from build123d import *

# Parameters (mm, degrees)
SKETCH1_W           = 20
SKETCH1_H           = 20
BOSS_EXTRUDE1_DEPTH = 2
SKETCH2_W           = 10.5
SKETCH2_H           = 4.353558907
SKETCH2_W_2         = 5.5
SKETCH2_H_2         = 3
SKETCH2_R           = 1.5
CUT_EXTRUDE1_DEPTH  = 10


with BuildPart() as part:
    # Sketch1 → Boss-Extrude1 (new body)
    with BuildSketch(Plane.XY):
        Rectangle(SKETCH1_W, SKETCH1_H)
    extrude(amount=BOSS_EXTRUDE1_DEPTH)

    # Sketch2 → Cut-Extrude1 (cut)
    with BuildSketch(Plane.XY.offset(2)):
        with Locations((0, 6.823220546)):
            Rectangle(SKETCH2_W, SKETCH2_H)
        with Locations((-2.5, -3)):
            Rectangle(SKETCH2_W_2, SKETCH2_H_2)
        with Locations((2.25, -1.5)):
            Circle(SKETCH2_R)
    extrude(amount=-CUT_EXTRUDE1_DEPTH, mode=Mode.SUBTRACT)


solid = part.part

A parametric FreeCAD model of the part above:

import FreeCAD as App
import Part
import Sketcher

doc = App.newDocument("Part")
params = doc.addObject("Spreadsheet::Sheet", "Params")
for row, (alias, value) in enumerate([
    ("sketch1_width", "20 mm"),
    ("pad1_length", "2 mm"),
    ("sketch2_diameter", "3 mm"),
    ("sketch2_height", "3 mm"),
    ("sketch2_width", "10.5 mm"),
    ("sketch2_width2", "5.5 mm"),
    ("pocket1_length", "10 mm"),
], start=1):
    params.set(f"A{row}", alias)
    params.set(f"B{row}", "=" + value)
    params.setAlias(f"B{row}", alias)

body = doc.addObject("PartDesign::Body", "Body")

sketch1 = body.newObject("Sketcher::SketchObject", "Sketch")
sketch1.AttachmentSupport = (doc.getObject("XY_Plane"), [""])
sketch1.MapMode = "FlatFace"
sketch1.addGeometry(Part.LineSegment(App.Vector(-10, 10, 0), App.Vector(-10, -10, 0)), False)
sketch1.addGeometry(Part.LineSegment(App.Vector(-10, -10, 0), App.Vector(10, -10, 0)), False)
sketch1.addGeometry(Part.LineSegment(App.Vector(10, -10, 0), App.Vector(10, 10, 0)), False)
sketch1.addGeometry(Part.LineSegment(App.Vector(10, 10, 0), App.Vector(-10, 10, 0)), False)
sketch1.addConstraint(Sketcher.Constraint("Coincident", 0, 2, 1, 1))
sketch1.addConstraint(Sketcher.Constraint("Coincident", 1, 2, 2, 1))
sketch1.addConstraint(Sketcher.Constraint("Coincident", 2, 2, 3, 1))
sketch1.addConstraint(Sketcher.Constraint("Coincident", 3, 2, 0, 1))
sketch1.addConstraint(Sketcher.Constraint("Vertical", 0))
sketch1.addConstraint(Sketcher.Constraint("Horizontal", 1))
sketch1.addConstraint(Sketcher.Constraint("Vertical", 2))
sketch1.addConstraint(Sketcher.Constraint("Horizontal", 3))
sketch1.addConstraint(Sketcher.Constraint("Symmetric", 0, 2, 2, 2, -1, 1))
sketch1.addConstraint(Sketcher.Constraint("Equal", 3, 0))
sketch1.addConstraint(Sketcher.Constraint("DistanceX", 1, 1, 1, 2, 20.0))
sketch1.setExpression("Constraints[10]", "Params.sketch1_width")
pad1 = body.newObject("PartDesign::Pad", "Pad")
pad1.Profile = sketch1
pad1.setExpression("Length", "Params.pad1_length")

sketch2 = body.newObject("Sketcher::SketchObject", "Sketch001")
sketch2.AttachmentSupport = (doc.getObject("XY_Plane"), [""])
sketch2.MapMode = "FlatFace"
sketch2.AttachmentOffset = App.Placement(App.Vector(0, 0, 2), App.Rotation())
sketch2.addGeometry(Part.LineSegment(App.Vector(-5.2, 9, 0), App.Vector(-5.2, 4.6, 0)), False)
sketch2.addGeometry(Part.LineSegment(App.Vector(-5.2, 4.6, 0), App.Vector(5.2, 4.6, 0)), False)
sketch2.addGeometry(Part.LineSegment(App.Vector(5.2, 4.6, 0), App.Vector(5.2, 9, 0)), False)
sketch2.addGeometry(Part.LineSegment(App.Vector(5.2, 9, 0), App.Vector(-5.2, 9, 0)), False)
sketch2.addGeometry(Part.LineSegment(App.Vector(-5.2, -1.5, 0), App.Vector(-5.2, -4.5, 0)), False)
sketch2.addGeometry(Part.LineSegment(App.Vector(-5.2, -4.5, 0), App.Vector(0.2, -4.5, 0)), False)
sketch2.addGeometry(Part.LineSegment(App.Vector(0.2, -4.5, 0), App.Vector(0.2, -1.5, 0)), False)
sketch2.addGeometry(Part.LineSegment(App.Vector(0.2, -1.5, 0), App.Vector(-5.2, -1.5, 0)), False)
sketch2.addGeometry(Part.Circle(App.Vector(2.2, -1.5, 0), App.Vector(0, 0, 1), 1.5), False)
sketch2.addConstraint(Sketcher.Constraint("Coincident", 0, 2, 1, 1))
sketch2.addConstraint(Sketcher.Constraint("Coincident", 1, 2, 2, 1))
sketch2.addConstraint(Sketcher.Constraint("Coincident", 2, 2, 3, 1))
sketch2.addConstraint(Sketcher.Constraint("Coincident", 3, 2, 0, 1))
sketch2.addConstraint(Sketcher.Constraint("Coincident", 4, 2, 5, 1))
sketch2.addConstraint(Sketcher.Constraint("Coincident", 5, 2, 6, 1))
sketch2.addConstraint(Sketcher.Constraint("Coincident", 6, 2, 7, 1))
sketch2.addConstraint(Sketcher.Constraint("Coincident", 7, 2, 4, 1))
sketch2.addConstraint(Sketcher.Constraint("Vertical", 0))
sketch2.addConstraint(Sketcher.Constraint("Horizontal", 1))
sketch2.addConstraint(Sketcher.Constraint("Vertical", 2))
sketch2.addConstraint(Sketcher.Constraint("Horizontal", 3))
sketch2.addConstraint(Sketcher.Constraint("Vertical", 4))
sketch2.addConstraint(Sketcher.Constraint("Horizontal", 5))
sketch2.addConstraint(Sketcher.Constraint("Vertical", 6))
sketch2.addConstraint(Sketcher.Constraint("Horizontal", 7))
sketch2.addConstraint(Sketcher.Constraint("Horizontal", 8, 3, 6, 2))
sketch2.addConstraint(Sketcher.Constraint("Vertical", 3, 2, 4, 2))
sketch2.addConstraint(Sketcher.Constraint("Diameter", 8, 3.0))
sketch2.addConstraint(Sketcher.Constraint("DistanceY", 4, 2, 4, 1, 3.0))
sketch2.addConstraint(Sketcher.Constraint("DistanceX", 1, 1, 1, 2, 10.5))
sketch2.addConstraint(Sketcher.Constraint("DistanceX", 5, 1, 5, 2, 5.5))
sketch2.addConstraint(Sketcher.Constraint("DistanceY", -1, 1, 2, 2, 9.0))
sketch2.addConstraint(Sketcher.Constraint("DistanceX", 8, 3, 1, 2, 3.0))
sketch2.addConstraint(Sketcher.Constraint("DistanceY", 8, 3, -1, 1, 1.5))
sketch2.addConstraint(Sketcher.Constraint("DistanceX", -1, 1, 8, 3, 2.25))
sketch2.addConstraint(Sketcher.Constraint("DistanceY", 0, 2, 0, 1, 4.353559))
sketch2.setExpression("Constraints[18]", "Params.sketch2_diameter")
sketch2.setExpression("Constraints[19]", "Params.sketch2_height")
sketch2.setExpression("Constraints[20]", "Params.sketch2_width")
sketch2.setExpression("Constraints[21]", "Params.sketch2_width2")
pocket1 = body.newObject("PartDesign::Pocket", "Pocket")
pocket1.Profile = sketch2
pocket1.setExpression("Length", "Params.pocket1_length")

doc.recompute()
